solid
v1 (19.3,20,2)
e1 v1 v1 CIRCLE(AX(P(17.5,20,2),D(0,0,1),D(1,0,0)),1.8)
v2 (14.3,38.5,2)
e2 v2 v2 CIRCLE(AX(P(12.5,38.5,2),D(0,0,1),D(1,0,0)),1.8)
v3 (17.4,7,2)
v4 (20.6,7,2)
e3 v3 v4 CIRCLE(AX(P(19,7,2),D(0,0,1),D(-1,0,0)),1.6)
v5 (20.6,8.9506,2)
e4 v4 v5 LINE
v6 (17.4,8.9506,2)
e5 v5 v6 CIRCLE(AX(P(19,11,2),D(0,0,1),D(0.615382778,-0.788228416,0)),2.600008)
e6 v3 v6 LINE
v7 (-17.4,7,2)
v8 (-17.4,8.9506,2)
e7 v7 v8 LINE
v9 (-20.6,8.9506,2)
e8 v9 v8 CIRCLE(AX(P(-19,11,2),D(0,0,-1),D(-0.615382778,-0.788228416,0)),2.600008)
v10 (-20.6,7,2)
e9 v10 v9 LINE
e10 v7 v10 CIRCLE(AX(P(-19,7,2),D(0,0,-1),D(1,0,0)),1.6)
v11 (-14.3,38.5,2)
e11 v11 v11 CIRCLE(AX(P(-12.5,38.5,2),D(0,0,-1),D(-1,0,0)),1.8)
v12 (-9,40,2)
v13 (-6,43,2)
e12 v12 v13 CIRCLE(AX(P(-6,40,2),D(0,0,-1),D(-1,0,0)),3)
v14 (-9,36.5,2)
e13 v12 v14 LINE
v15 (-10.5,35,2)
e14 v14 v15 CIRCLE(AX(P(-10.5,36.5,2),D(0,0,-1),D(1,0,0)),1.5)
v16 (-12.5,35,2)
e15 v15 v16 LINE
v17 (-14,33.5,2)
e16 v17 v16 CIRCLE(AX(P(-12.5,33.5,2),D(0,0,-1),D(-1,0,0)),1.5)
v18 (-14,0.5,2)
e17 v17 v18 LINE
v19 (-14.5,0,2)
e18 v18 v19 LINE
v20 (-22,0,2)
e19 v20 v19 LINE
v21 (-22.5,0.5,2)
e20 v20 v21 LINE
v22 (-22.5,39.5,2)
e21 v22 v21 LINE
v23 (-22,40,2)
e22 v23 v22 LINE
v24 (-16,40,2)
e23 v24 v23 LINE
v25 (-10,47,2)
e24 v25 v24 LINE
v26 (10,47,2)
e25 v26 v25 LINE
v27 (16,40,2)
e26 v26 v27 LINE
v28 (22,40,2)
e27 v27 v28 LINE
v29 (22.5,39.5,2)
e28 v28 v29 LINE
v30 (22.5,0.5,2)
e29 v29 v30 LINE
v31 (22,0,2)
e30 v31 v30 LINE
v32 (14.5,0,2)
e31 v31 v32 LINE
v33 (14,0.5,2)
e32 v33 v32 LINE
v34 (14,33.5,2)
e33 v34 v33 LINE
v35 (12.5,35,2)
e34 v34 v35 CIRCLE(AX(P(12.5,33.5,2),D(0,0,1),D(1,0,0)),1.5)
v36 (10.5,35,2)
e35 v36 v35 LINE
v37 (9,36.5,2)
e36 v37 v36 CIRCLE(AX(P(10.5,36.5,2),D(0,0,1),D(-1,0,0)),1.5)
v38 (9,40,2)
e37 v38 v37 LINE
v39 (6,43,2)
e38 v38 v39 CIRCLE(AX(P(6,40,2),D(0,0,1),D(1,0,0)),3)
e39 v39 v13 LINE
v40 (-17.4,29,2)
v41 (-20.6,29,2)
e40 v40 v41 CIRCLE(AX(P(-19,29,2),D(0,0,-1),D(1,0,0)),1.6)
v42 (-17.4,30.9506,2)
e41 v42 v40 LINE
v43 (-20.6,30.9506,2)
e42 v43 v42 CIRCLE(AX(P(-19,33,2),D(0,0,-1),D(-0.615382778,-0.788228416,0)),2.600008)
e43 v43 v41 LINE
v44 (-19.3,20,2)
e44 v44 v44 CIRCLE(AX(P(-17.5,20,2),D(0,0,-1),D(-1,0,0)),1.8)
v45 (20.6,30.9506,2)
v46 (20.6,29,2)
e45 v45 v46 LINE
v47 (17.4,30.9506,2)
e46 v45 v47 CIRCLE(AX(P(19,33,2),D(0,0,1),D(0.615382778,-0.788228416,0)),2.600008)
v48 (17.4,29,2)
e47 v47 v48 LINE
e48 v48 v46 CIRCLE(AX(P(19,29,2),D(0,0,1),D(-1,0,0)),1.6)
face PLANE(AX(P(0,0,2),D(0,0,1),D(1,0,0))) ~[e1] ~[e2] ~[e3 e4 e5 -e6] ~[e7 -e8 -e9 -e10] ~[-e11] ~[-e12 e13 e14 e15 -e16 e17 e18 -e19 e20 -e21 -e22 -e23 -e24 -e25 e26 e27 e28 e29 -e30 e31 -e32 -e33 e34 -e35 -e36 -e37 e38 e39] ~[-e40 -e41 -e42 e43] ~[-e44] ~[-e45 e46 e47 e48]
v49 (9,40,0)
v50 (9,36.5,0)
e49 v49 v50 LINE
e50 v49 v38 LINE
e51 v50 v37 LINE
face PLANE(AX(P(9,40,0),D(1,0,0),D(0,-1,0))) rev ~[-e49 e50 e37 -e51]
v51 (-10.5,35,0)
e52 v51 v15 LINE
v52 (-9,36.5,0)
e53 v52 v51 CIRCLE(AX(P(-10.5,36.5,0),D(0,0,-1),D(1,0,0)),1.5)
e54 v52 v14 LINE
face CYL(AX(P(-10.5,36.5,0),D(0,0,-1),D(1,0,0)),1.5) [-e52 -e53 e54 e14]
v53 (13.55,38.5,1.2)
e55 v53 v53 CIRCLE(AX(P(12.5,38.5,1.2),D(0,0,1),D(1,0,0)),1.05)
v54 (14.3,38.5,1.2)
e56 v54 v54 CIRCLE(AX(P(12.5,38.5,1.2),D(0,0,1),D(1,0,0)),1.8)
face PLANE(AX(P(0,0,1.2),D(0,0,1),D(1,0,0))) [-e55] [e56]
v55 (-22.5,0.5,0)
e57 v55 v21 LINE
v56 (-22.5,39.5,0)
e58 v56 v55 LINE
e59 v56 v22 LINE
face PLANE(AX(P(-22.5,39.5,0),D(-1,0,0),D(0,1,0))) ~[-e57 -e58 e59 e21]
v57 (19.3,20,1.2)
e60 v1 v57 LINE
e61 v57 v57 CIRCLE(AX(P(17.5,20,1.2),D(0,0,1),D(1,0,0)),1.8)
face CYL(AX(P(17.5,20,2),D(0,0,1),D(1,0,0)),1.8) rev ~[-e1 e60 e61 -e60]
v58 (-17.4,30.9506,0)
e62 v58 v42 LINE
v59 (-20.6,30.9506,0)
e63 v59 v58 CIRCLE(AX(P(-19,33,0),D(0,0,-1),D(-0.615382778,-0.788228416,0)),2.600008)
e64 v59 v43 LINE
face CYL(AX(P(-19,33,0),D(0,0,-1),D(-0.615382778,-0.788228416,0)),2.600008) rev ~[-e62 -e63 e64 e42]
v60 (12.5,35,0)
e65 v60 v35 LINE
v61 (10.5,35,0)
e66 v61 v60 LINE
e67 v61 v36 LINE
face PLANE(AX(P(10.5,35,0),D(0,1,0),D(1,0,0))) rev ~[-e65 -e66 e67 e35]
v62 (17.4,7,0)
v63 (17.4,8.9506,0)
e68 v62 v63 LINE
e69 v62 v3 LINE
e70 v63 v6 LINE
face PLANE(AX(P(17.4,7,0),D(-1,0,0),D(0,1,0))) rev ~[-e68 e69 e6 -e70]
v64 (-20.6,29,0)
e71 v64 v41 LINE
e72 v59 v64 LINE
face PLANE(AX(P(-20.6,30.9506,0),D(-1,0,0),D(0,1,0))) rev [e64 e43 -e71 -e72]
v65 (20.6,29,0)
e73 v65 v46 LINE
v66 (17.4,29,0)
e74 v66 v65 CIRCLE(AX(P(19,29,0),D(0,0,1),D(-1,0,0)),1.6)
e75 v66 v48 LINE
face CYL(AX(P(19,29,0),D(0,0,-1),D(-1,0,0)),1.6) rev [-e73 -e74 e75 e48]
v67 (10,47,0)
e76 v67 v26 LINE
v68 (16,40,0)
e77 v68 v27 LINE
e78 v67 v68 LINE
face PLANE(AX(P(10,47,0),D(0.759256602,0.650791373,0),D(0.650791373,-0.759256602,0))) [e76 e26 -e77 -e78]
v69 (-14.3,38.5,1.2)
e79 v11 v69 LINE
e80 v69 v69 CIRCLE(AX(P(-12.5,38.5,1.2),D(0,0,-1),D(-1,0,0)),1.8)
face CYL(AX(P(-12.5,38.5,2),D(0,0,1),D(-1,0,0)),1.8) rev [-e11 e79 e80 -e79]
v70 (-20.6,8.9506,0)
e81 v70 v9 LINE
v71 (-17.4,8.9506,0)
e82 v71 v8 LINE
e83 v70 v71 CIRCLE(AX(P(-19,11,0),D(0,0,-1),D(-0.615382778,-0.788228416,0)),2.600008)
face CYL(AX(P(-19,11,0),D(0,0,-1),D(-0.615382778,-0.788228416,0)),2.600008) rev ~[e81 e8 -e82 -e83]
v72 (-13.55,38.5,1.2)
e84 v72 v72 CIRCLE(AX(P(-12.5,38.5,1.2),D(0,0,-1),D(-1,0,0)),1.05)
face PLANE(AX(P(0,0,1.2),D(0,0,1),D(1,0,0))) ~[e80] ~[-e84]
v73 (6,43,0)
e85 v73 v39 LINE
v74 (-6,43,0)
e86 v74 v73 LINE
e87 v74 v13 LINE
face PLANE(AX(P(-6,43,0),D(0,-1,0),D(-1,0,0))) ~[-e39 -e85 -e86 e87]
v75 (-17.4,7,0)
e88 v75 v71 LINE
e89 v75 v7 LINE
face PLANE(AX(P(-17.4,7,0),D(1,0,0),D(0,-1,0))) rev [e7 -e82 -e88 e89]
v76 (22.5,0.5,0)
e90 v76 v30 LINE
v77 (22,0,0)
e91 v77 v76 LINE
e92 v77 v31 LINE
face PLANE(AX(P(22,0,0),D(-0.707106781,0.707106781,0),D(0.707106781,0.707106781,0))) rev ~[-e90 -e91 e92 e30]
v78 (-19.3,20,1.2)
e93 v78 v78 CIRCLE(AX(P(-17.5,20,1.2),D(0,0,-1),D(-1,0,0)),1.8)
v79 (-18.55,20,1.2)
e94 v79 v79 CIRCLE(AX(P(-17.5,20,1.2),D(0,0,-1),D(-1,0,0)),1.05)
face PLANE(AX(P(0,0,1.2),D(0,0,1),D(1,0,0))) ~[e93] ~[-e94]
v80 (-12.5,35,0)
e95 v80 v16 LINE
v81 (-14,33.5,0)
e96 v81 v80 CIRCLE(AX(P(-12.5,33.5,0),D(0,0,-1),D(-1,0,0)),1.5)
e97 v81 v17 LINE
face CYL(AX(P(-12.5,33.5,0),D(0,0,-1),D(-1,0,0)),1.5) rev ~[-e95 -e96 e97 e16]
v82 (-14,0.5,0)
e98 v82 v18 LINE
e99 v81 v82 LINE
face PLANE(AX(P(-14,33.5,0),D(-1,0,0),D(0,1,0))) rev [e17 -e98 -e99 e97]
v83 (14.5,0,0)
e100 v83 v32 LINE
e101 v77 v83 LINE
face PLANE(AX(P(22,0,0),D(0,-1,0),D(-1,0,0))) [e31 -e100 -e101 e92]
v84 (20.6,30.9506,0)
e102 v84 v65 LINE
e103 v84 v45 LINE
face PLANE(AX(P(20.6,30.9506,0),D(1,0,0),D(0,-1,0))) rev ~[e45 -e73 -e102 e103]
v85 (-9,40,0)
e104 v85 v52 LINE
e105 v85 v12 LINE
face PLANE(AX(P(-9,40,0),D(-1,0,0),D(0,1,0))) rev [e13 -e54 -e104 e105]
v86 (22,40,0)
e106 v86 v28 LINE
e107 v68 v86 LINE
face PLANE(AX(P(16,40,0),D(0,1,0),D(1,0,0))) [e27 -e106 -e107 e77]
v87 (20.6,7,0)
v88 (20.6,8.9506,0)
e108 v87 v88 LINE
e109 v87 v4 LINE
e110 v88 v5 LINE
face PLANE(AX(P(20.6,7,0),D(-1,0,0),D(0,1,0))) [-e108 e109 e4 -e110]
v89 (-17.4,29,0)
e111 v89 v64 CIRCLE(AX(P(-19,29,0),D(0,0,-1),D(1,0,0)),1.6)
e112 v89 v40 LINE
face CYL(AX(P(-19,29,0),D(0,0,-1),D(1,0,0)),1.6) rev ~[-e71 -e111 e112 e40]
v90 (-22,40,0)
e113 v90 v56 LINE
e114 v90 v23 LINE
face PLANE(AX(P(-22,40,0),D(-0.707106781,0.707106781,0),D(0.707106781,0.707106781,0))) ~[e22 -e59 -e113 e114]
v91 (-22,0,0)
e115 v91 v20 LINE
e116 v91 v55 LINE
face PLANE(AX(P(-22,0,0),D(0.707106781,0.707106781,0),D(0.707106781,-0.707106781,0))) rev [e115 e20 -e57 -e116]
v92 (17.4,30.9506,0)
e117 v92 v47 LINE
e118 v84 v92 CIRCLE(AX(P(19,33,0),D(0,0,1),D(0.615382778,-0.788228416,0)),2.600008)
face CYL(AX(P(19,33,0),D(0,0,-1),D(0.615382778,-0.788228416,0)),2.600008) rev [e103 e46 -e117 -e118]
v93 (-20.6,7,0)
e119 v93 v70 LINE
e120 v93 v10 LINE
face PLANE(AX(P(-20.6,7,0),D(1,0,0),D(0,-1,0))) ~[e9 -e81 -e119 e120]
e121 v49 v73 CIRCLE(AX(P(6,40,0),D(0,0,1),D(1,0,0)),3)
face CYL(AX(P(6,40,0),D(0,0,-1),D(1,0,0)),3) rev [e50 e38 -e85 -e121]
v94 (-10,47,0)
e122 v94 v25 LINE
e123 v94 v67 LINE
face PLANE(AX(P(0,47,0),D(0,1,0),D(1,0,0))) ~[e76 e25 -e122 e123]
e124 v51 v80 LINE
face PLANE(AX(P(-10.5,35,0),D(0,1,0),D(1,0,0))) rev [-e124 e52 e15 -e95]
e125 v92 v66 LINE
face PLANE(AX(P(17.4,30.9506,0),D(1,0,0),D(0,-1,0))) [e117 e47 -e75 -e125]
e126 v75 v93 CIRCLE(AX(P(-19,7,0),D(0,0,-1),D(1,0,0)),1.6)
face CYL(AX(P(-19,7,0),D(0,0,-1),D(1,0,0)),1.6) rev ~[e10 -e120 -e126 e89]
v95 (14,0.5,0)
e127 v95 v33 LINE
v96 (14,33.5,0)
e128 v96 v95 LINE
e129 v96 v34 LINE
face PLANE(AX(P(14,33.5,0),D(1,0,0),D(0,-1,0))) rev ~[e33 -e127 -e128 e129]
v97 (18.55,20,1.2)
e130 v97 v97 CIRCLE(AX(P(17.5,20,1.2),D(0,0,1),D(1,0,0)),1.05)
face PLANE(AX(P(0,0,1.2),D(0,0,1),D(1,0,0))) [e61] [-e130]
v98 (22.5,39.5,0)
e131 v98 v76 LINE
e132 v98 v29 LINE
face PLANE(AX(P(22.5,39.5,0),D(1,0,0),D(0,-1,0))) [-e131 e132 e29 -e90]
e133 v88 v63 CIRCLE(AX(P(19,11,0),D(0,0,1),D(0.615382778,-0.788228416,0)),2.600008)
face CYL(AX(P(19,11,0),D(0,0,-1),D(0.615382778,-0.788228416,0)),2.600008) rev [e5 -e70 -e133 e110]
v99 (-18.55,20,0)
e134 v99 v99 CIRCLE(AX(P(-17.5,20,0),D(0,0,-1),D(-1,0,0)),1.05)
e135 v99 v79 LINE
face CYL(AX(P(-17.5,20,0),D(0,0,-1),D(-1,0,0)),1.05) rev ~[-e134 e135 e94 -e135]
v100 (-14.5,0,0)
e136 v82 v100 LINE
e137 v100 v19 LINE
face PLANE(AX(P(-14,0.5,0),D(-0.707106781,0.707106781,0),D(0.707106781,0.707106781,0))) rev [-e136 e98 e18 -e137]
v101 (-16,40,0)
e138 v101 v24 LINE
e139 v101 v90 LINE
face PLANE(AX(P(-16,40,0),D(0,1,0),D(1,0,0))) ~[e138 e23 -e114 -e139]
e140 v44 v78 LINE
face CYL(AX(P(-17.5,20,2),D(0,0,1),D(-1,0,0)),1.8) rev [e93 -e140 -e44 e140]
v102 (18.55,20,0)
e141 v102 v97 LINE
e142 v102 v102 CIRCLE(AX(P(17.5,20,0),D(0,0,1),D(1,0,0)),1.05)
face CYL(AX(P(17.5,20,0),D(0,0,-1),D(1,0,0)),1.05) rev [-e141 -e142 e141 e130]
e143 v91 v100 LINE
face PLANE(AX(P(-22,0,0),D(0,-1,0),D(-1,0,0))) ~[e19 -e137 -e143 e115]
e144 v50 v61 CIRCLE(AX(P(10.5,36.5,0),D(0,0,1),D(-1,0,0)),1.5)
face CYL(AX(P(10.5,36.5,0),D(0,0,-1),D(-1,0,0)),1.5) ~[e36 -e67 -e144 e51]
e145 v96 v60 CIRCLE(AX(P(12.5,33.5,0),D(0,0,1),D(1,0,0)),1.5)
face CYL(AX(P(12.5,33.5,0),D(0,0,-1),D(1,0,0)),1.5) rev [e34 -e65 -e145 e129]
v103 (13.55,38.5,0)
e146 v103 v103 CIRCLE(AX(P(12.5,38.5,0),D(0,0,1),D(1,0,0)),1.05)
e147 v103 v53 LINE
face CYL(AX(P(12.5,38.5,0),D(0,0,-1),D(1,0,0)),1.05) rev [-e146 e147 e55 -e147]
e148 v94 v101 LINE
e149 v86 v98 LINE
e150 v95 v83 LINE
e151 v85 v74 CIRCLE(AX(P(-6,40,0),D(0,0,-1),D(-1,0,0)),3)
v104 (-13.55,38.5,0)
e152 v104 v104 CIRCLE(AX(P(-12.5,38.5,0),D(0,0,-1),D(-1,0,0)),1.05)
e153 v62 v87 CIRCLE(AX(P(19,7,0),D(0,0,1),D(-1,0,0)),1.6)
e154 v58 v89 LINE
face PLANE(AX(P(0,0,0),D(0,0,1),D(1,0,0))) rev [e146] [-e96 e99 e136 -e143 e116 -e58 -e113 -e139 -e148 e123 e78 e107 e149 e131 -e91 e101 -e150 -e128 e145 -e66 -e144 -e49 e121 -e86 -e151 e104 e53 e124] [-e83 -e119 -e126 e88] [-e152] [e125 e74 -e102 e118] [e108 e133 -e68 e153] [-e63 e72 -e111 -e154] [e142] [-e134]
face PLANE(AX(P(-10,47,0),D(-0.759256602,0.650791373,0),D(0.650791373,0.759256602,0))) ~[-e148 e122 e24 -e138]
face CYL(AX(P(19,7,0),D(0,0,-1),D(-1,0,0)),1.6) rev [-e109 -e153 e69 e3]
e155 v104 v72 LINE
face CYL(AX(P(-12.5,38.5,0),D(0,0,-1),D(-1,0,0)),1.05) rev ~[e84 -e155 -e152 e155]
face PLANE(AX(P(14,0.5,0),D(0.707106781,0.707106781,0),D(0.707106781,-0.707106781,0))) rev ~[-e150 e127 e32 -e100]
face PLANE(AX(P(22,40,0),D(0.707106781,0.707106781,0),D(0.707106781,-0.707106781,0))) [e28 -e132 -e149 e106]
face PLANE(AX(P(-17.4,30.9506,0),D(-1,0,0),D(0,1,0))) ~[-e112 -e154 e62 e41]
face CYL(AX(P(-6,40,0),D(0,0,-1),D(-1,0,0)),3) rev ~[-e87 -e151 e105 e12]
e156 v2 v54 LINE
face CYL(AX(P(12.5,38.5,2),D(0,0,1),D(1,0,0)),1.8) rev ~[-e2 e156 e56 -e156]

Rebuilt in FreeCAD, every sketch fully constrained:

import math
import FreeCAD as App
import Part
import Sketcher
from FreeCAD import Vector
Q = App.Units.Quantity

doc = App.newDocument("Part")
body = doc.addObject("PartDesign::Body", "Body")

# Sketch on XY plane
sketch1 = doc.addObject("Sketcher::SketchObject", "Sketch")
body.addObject(sketch1)
sketch1.AttachmentSupport = (doc.XY_Plane, [""])
sketch1.MapMode = "FlatFace"
sketch1.addGeometry([
    Part.ArcOfCircle(Part.Circle(Vector(6, 40, 0), Vector(0, 0, 1), 3), math.radians(0), math.radians(90)),  # 0
    Part.LineSegment(Vector(9, 40, 0), Vector(9, 36.5, 0)),  # 1
    Part.ArcOfCircle(Part.Circle(Vector(10.5, 36.5, 0), Vector(0, 0, 1), 1.5), math.radians(180), math.radians(270)),  # 2
    Part.LineSegment(Vector(10.5, 35, 0), Vector(12.5, 35, 0)),  # 3
    Part.ArcOfCircle(Part.Circle(Vector(12.5, 33.5, 0), Vector(0, 0, 1), 1.5), math.radians(0), math.radians(90)),  # 4
    Part.LineSegment(Vector(14, 33.5, 0), Vector(14, 0.5, 0)),  # 5
    Part.LineSegment(Vector(14, 0.5, 0), Vector(14.5, 0, 0)),  # 6
    Part.LineSegment(Vector(14.5, 0, 0), Vector(22, 0, 0)),  # 7
    Part.LineSegment(Vector(22, 0, 0), Vector(22.5, 0.5, 0)),  # 8
    Part.LineSegment(Vector(22.5, 0.5, 0), Vector(22.5, 39.5, 0)),  # 9
    Part.LineSegment(Vector(22.5, 39.5, 0), Vector(22, 40, 0)),  # 10
    Part.LineSegment(Vector(22, 40, 0), Vector(16, 40, 0)),  # 11
    Part.LineSegment(Vector(16, 40, 0), Vector(10, 47, 0)),  # 12
    Part.LineSegment(Vector(10, 47, 0), Vector(0, 47, 0)),  # 13
    Part.LineSegment(Vector(0, 47, 0), Vector(0, 43, 0)),  # 14
    Part.LineSegment(Vector(0, 43, 0), Vector(6, 43, 0)),  # 15
    Part.ArcOfCircle(Part.Circle(Vector(19, 7, 0), Vector(0, 0, 1), 1.6), math.radians(180), math.radians(360)),  # 16
    Part.LineSegment(Vector(17.4, 7, 0), Vector(17.4, 8.9506, 0)),  # 17
    Part.ArcOfCircle(Part.Circle(Vector(19, 11, 0), Vector(0, 0, 1), 2.600008), math.radians(-52.020261), math.radians(232.020261)),  # 18
    Part.LineSegment(Vector(20.6, 8.9506, 0), Vector(20.6, 7, 0)),  # 19
    Part.Circle(Vector(17.5, 20, 0), Vector(0, 0, 1), 1.05),  # 20
    Part.ArcOfCircle(Part.Circle(Vector(19, 33, 0), Vector(0, 0, 1), 2.600008), math.radians(-52.020261), math.radians(232.020261)),  # 21
    Part.LineSegment(Vector(20.6, 30.9506, 0), Vector(20.6, 29, 0)),  # 22
    Part.ArcOfCircle(Part.Circle(Vector(19, 29, 0), Vector(0, 0, 1), 1.6), math.radians(180), math.radians(360)),  # 23
    Part.LineSegment(Vector(17.4, 29, 0), Vector(17.4, 30.9506, 0)),  # 24
    Part.Circle(Vector(12.5, 38.5, 0), Vector(0, 0, 1), 1.05),  # 25
], False)
sketch1.addConstraint([
    Sketcher.Constraint("Tangent", 0, 1, 1, 1),
    Sketcher.Constraint("Tangent", 1, 2, 2, 1),
    Sketcher.Constraint("Tangent", 2, 2, 3, 1),
    Sketcher.Constraint("Tangent", 3, 2, 4, 2),
    Sketcher.Constraint("Tangent", 4, 1, 5, 1),
    Sketcher.Constraint("Coincident", 5, 2, 6, 1),
    Sketcher.Constraint("Coincident", 6, 2, 7, 1),
    Sketcher.Constraint("Coincident", 7, 2, 8, 1),
    Sketcher.Constraint("Coincident", 8, 2, 9, 1),
    Sketcher.Constraint("Coincident", 9, 2, 10, 1),
    Sketcher.Constraint("Coincident", 10, 2, 11, 1),
    Sketcher.Constraint("Coincident", 11, 2, 12, 1),
    Sketcher.Constraint("Coincident", 12, 2, 13, 1),
    Sketcher.Constraint("Coincident", 13, 2, 14, 1),
    Sketcher.Constraint("Coincident", 14, 2, 15, 1),
    Sketcher.Constraint("Tangent", 15, 2, 0, 2),
    Sketcher.Constraint("Tangent", 16, 1, 17, 1),
    Sketcher.Constraint("Coincident", 17, 2, 18, 2),
    Sketcher.Constraint("Coincident", 18, 1, 19, 1),
    Sketcher.Constraint("Tangent", 19, 2, 16, 2),
    Sketcher.Constraint("Coincident", 21, 1, 22, 1),
    Sketcher.Constraint("Tangent", 22, 2, 23, 2),
    Sketcher.Constraint("Tangent", 23, 1, 24, 1),
    Sketcher.Constraint("Coincident", 24, 2, 21, 2),
    Sketcher.Constraint("Vertical", 1),
    Sketcher.Constraint("Horizontal", 3),
    Sketcher.Constraint("Vertical", 5),
    Sketcher.Constraint("Horizontal", 7),
    Sketcher.Constraint("Vertical", 9),
    Sketcher.Constraint("Horizontal", 11),
    Sketcher.Constraint("Horizontal", 13),
    Sketcher.Constraint("Vertical", 14),
    Sketcher.Constraint("Horizontal", 15),
    Sketcher.Constraint("Vertical", 17),
    Sketcher.Constraint("Vertical", 19),
    Sketcher.Constraint("Vertical", 22),
    Sketcher.Constraint("Vertical", 24),
    Sketcher.Constraint("Equal", 2, 4),
    Sketcher.Constraint("Equal", 18, 21),
    Sketcher.Constraint("Equal", 16, 23),
    Sketcher.Constraint("Equal", 20, 25),
    Sketcher.Constraint("PointOnObject", 6, 2, -1),
    Sketcher.Constraint("PointOnObject", 13, 2, -2),
    Sketcher.Constraint("Perpendicular", 6, 8),
    Sketcher.Constraint("Perpendicular", 8, 10),
    Sketcher.Constraint("Horizontal", 5, 2, 8, 2),
    Sketcher.Constraint("Horizontal", 0, 1, 10, 2),
    Sketcher.Constraint("Horizontal", 17, 2, 18, 1),
    Sketcher.Constraint("Horizontal", 21, 1, 24, 2),
    Sketcher.Constraint("Vertical", 18, 3, 21, 3),
    Sketcher.Constraint("Vertical", 4, 3, 25, 3),
    Sketcher.Constraint("Vertical", 7, 2, 10, 2),
    Sketcher.Constraint("Equal", 11, 15),
    Sketcher.Constraint("Equal", 19, 22),
    Sketcher.Constraint("Equal", 6, 8),
    Sketcher.Constraint("Radius", 0, Q("3 mm")),
    Sketcher.Constraint("Diameter", 20, Q("2.1 mm")),
    Sketcher.Constraint("Radius", 2, Q("1.5 mm")),
    Sketcher.Constraint("Radius", 16, Q("1.6 mm")),
    Sketcher.Constraint("Radius", 18, Q("2.6 mm")),
    Sketcher.Constraint("DistanceX", 11, 2, 11, 1, Q("6 mm")),
    Sketcher.Constraint("DistanceX", 13, 2, 13, 1, Q("10 mm")),
    Sketcher.Constraint("DistanceY", 14, 2, 14, 1, Q("4 mm")),
    Sketcher.Constraint("DistanceY", -1, 1, 0, 3, Q("40 mm")),
    Sketcher.Constraint("DistanceY", -1, 1, 16, 3, Q("7 mm")),
    Sketcher.Constraint("DistanceY", 16, 3, 18, 3, Q("4 mm")),
    Sketcher.Constraint("DistanceY", 18, 3, 20, 3, Q("9 mm")),
    Sketcher.Constraint("DistanceX", 2, 3, 20, 3, Q("7 mm")),
    Sketcher.Constraint("DistanceY", 21, 3, 0, 3, Q("7 mm")),
    Sketcher.Constraint("DistanceX", 0, 1, 21, 3, Q("10 mm")),
    Sketcher.Constraint("DistanceX", 25, 3, 9, 2, Q("10 mm")),
    Sketcher.Constraint("DistanceY", 4, 1, 9, 2, Q("6 mm")),
    Sketcher.Constraint("DistanceX", 12, 2, 11, 2, Q("6 mm")),
    Sketcher.Constraint("DistanceY", -1, 1, 5, 2, Q("0.5 mm")),
    Sketcher.Constraint("DistanceY", 25, 3, 0, 3, Q("1.5 mm")),
])
pad1 = doc.addObject("PartDesign::Pad", "Pad")
body.addObject(pad1)
pad1.Profile = sketch1
pad1.Length = 2

# Sketch on XY plane
sketch2 = doc.addObject("Sketcher::SketchObject", "Sketch001")
body.addObject(sketch2)
sketch2.AttachmentSupport = (doc.XY_Plane, [""])
sketch2.MapMode = "FlatFace"
sketch2.AttachmentOffset = App.Placement(Vector(0, 0, 2), App.Rotation())
sketch2.addGeometry([
    Part.Circle(Vector(17.5, 20, 0), Vector(0, 0, 1), 1.8),
    Part.Circle(Vector(17.5, 20, 0), Vector(0, 0, 1), 1.05),
    Part.Circle(Vector(12.5, 38.5, 0), Vector(0, 0, 1), 1.8),
    Part.Circle(Vector(12.5, 38.5, 0), Vector(0, 0, 1), 1.05),
], False)
sketch2.addConstraint([
    Sketcher.Constraint("Coincident", 1, 3, 0, 3),
    Sketcher.Constraint("Coincident", 3, 3, 2, 3),
    Sketcher.Constraint("Equal", 0, 2),
    Sketcher.Constraint("Equal", 1, 3),
    Sketcher.Constraint("Diameter", 0, Q("3.6 mm")),
    Sketcher.Constraint("Diameter", 1, Q("2.1 mm")),
    Sketcher.Constraint("DistanceY", -1, 1, 0, 3, Q("20 mm")),
    Sketcher.Constraint("DistanceX", 2, 3, 0, 3, Q("5 mm")),
    Sketcher.Constraint("DistanceX", -1, 1, 0, 3, Q("17.5 mm")),
    Sketcher.Constraint("DistanceY", -1, 1, 2, 3, Q("38.5 mm")),
])
pocket1 = doc.addObject("PartDesign::Pocket", "Pocket")
body.addObject(pocket1)
pocket1.Profile = sketch2
pocket1.Length = 0.8
doc.recompute()

mirrored = doc.addObject("PartDesign::Mirrored", "Mirrored")
body.addObject(mirrored)
mirrored.Originals = [pad1, pocket1]
mirrored.MirrorPlane = (doc.YZ_Plane, [""])
body.Tip = mirrored

doc.recompute()
